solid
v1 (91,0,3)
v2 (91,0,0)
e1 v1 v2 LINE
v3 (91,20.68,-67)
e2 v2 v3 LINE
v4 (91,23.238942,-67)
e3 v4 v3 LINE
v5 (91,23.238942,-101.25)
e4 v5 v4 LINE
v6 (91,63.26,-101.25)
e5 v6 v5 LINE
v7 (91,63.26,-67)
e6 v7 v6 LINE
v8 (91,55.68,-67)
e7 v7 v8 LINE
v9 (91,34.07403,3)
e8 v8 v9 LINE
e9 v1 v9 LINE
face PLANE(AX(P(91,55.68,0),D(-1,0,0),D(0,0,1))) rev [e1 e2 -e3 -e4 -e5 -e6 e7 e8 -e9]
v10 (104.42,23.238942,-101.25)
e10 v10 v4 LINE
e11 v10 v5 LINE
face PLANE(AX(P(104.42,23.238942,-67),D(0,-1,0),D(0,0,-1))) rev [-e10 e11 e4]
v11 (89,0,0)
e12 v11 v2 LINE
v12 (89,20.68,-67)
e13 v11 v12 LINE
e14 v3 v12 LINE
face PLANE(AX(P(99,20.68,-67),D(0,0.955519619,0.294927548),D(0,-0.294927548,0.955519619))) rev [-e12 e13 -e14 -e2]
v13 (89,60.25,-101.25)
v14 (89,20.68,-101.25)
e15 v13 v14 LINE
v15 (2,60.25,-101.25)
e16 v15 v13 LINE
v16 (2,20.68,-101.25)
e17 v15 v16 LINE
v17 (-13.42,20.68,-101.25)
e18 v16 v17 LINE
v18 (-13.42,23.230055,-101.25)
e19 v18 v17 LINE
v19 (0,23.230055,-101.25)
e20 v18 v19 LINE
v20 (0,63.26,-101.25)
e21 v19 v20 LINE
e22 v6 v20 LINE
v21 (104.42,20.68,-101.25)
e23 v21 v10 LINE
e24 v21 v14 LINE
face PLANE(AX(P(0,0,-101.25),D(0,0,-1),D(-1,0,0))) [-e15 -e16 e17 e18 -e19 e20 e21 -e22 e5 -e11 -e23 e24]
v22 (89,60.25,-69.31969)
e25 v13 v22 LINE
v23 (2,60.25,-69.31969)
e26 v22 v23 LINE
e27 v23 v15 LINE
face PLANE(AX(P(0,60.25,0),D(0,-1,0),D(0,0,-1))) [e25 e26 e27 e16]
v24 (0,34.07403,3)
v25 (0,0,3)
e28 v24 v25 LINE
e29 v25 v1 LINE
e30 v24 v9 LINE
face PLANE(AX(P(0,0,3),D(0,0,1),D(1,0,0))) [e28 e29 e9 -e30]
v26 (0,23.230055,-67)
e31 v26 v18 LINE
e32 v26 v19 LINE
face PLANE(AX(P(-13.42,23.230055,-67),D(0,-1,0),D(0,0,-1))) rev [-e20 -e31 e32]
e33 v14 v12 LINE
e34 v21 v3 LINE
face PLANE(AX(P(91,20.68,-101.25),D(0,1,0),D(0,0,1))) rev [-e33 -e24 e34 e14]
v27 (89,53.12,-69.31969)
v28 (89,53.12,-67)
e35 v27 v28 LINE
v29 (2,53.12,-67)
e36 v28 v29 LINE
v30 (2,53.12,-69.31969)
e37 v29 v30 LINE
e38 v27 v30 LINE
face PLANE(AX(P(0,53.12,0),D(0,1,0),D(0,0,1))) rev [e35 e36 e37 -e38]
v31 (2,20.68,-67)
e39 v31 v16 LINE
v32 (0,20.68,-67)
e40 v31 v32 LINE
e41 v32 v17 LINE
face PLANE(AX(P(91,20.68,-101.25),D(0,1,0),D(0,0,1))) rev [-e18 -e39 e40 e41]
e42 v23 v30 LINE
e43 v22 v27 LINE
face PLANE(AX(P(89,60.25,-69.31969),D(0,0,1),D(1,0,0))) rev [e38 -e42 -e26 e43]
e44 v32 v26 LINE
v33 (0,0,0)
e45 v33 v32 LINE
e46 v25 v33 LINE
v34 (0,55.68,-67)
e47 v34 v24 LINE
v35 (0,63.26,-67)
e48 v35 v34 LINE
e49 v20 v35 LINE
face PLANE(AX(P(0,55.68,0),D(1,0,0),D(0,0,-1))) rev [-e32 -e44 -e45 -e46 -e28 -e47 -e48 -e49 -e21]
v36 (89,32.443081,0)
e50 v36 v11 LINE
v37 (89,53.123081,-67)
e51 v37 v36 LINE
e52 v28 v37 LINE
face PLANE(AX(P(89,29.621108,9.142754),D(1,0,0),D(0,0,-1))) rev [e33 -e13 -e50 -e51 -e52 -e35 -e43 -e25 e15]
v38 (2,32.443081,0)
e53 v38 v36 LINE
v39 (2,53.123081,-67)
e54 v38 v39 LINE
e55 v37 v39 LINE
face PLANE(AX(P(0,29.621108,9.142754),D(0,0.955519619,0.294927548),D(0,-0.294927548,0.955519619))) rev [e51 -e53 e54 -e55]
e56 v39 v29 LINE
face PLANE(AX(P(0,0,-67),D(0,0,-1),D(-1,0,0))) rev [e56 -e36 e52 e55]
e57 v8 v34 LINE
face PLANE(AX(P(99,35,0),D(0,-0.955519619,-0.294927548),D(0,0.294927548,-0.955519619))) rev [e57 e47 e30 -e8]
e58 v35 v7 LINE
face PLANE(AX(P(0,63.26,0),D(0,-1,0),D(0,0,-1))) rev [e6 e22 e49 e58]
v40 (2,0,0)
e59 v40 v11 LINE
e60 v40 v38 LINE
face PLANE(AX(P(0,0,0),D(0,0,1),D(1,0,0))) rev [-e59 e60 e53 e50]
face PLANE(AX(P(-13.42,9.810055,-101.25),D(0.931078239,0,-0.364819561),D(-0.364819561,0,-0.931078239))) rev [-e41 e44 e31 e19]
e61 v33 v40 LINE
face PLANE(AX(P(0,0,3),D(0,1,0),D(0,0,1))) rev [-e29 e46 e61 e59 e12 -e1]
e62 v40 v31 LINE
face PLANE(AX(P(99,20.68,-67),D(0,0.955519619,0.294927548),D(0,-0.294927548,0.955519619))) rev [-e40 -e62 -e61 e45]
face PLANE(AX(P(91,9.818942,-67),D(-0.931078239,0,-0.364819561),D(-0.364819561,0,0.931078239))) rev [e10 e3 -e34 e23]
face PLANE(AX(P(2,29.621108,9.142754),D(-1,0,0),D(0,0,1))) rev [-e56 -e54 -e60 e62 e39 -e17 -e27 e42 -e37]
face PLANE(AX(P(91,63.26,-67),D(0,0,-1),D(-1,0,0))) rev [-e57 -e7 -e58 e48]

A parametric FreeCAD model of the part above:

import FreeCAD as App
import Part
import Sketcher

V = App.Vector
Q = App.Units.Quantity

doc = App.newDocument("Part")
body = doc.addObject("PartDesign::Body", "Body")

sketch1 = doc.addObject("Sketcher::SketchObject", "Sketch")
body.addObject(sketch1)
sketch1.AttachmentSupport = (doc.XZ_Plane, [""])
sketch1.MapMode = "FlatFace"
sketch1.addGeometry([
    Part.LineSegment(V(0, -67, 0), V(0, 0, 0)),
    Part.LineSegment(V(0, 0, 0), V(91, 0, 0)),
    Part.LineSegment(V(91, 0, 0), V(91, -67, 0)),
    Part.LineSegment(V(91, -67, 0), V(0, -67, 0)),
], False)
sketch1.addConstraint([
    Sketcher.Constraint("Coincident", 0, 2, 1, 1),
    Sketcher.Constraint("Coincident", 1, 2, 2, 1),
    Sketcher.Constraint("Coincident", 2, 2, 3, 1),
    Sketcher.Constraint("Coincident", 3, 2, 0, 1),
    Sketcher.Constraint("Vertical", 0),
    Sketcher.Constraint("Horizontal", 1),
    Sketcher.Constraint("Vertical", 2),
    Sketcher.Constraint("Horizontal", 3),
    Sketcher.Constraint("Coincident", 0, 2, -1, 1),
    Sketcher.Constraint("DistanceX", 1, 1, 1, 2, Q("91 mm")),
    Sketcher.Constraint("DistanceY", 0, 1, 0, 2, Q("67 mm")),
])
pad1 = doc.addObject("PartDesign::Pad", "Pad")
body.addObject(pad1)
pad1.Profile = sketch1
pad1.Length = 55.68
pad1.Reversed = True

sketch2 = doc.addObject("Sketcher::SketchObject", "Sketch001")
body.addObject(sketch2)
sketch2.AttachmentSupport = (doc.YZ_Plane, [""])
sketch2.MapMode = "FlatFace"
sketch2.addGeometry([
    Part.LineSegment(V(21, -67, 0), V(0, -67, 0)),
    Part.LineSegment(V(0, -67, 0), V(0, 0, 0)),
    Part.LineSegment(V(0, 0, 0), V(21, -67, 0)),
], False)
sketch2.addConstraint([
    Sketcher.Constraint("Coincident", 0, 2, 1, 1),
    Sketcher.Constraint("Coincident", 1, 2, 2, 1),
    Sketcher.Constraint("Coincident", 2, 2, 0, 1),
    Sketcher.Constraint("Horizontal", 0),
    Sketcher.Constraint("Vertical", 1),
    Sketcher.Constraint("Coincident", 1, 2, -1, 1),
    Sketcher.Constraint("DistanceY", 1, 1, 1, 2, Q("67 mm")),
    Sketcher.Constraint("DistanceX", 0, 2, 0, 1, Q("20.68 mm")),
])
pocket1 = doc.addObject("PartDesign::Pocket", "Pocket")
body.addObject(pocket1)
pocket1.Profile = sketch2
pocket1.Length = 99
pocket1.Reversed = True

sketch3 = doc.addObject("Sketcher::SketchObject", "Sketch002")
body.addObject(sketch3)
sketch3.AttachmentSupport = (doc.YZ_Plane, [""])
sketch3.MapMode = "FlatFace"
sketch3.addGeometry([
    Part.LineSegment(V(35, 0, 0), V(56, 0, 0)),
    Part.LineSegment(V(56, 0, 0), V(56, -67, 0)),
    Part.LineSegment(V(56, -67, 0), V(35, 0, 0)),
], False)
sketch3.addConstraint([
    Sketcher.Constraint("Coincident", 0, 2, 1, 1),
    Sketcher.Constraint("Coincident", 1, 2, 2, 1),
    Sketcher.Constraint("Coincident", 2, 2, 0, 1),
    Sketcher.Constraint("Horizontal", 0),
    Sketcher.Constraint("Vertical", 1),
    Sketcher.Constraint("PointOnObject", 0, 2, -1),
    Sketcher.Constraint("DistanceY", 1, 2, 1, 1, Q("67 mm")),
    Sketcher.Constraint("DistanceX", -1, 1, 2, 2, Q("35 mm")),
    Sketcher.Constraint("DistanceX", 0, 1, 0, 2, Q("20.68 mm")),
])
pocket2 = doc.addObject("PartDesign::Pocket", "Pocket001")
body.addObject(pocket2)
pocket2.Profile = sketch3
pocket2.Length = 99
pocket2.Reversed = True

sketch4 = doc.addObject("Sketcher::SketchObject", "Sketch003")
body.addObject(sketch4)
sketch4.Placement = App.Placement(V(0, 0, 0), App.Rotation(V(-1, 0, 0), V(0, 0.294927548, -0.955519619), V(0, -0.955519619, -0.294927548), "ZXY"))
sketch4.addGeometry([
    Part.LineSegment(V(-89, 98, 0), V(-89, 0, 0)),
    Part.LineSegment(V(-89, 0, 0), V(-2, 0, 0)),
    Part.LineSegment(V(-2, 0, 0), V(-2, 98, 0)),
    Part.LineSegment(V(-2, 98, 0), V(-89, 98, 0)),
], False)
sketch4.addConstraint([
    Sketcher.Constraint("Coincident", 0, 2, 1, 1),
    Sketcher.Constraint("Coincident", 1, 2, 2, 1),
    Sketcher.Constraint("Coincident", 2, 2, 3, 1),
    Sketcher.Constraint("Coincident", 3, 2, 0, 1),
    Sketcher.Constraint("Vertical", 0),
    Sketcher.Constraint("Horizontal", 1),
    Sketcher.Constraint("Vertical", 2),
    Sketcher.Constraint("Horizontal", 3),
    Sketcher.Constraint("PointOnObject", 0, 2, -1),
    Sketcher.Constraint("DistanceX", 1, 1, 1, 2, Q("87 mm")),
    Sketcher.Constraint("DistanceX", 0, 2, -1, 1, Q("89 mm")),
    Sketcher.Constraint("DistanceY", 0, 2, 0, 1, Q("97.652851 mm")),
])
pocket3 = doc.addObject("PartDesign::Pocket", "Pocket002")
body.addObject(pocket3)
pocket3.Profile = sketch4
pocket3.Length = 31

sketch5 = doc.addObject("Sketcher::SketchObject", "Sketch004")
body.addObject(sketch5)
sketch5.AttachmentSupport = (doc.XY_Plane, [""])
sketch5.MapMode = "FlatFace"
sketch5.AttachmentOffset = App.Placement(V(0, 0, -67), App.Rotation())
sketch5.addGeometry([
    Part.LineSegment(V(91, 56, 0), V(91, 21, 0)),
    Part.LineSegment(V(91, 21, 0), V(0, 21, 0)),
    Part.LineSegment(V(0, 21, 0), V(0, 56, 0)),
    Part.LineSegment(V(0, 56, 0), V(91, 56, 0)),
], False)
sketch5.addConstraint([
    Sketcher.Constraint("Coincident", 0, 2, 1, 1),
    Sketcher.Constraint("Coincident", 1, 2, 2, 1),
    Sketcher.Constraint("Coincident", 2, 2, 3, 1),
    Sketcher.Constraint("Coincident", 3, 2, 0, 1),
    Sketcher.Constraint("Vertical", 0),
    Sketcher.Constraint("Horizontal", 1),
    Sketcher.Constraint("Vertical", 2),
    Sketcher.Constraint("Horizontal", 3),
    Sketcher.Constraint("PointOnObject", 1, 2, -2),
    Sketcher.Constraint("DistanceX", 1, 2, 1, 1, Q("91 mm")),
    Sketcher.Constraint("DistanceY", 0, 2, 0, 1, Q("35 mm")),
    Sketcher.Constraint("DistanceY", -1, 1, 0, 2, Q("20.68 mm")),
])
pad2 = doc.addObject("PartDesign::Pad", "Pad001")
body.addObject(pad2)
pad2.Profile = sketch5
pad2.Length = 34.25
pad2.Reversed = True

sketch6 = doc.addObject("Sketcher::SketchObject", "Sketch005")
body.addObject(sketch6)
sketch6.AttachmentSupport = (doc.XZ_Plane, [""])
sketch6.MapMode = "FlatFace"
sketch6.AttachmentOffset = App.Placement(V(0, 0, -20.68), App.Rotation())
sketch6.addGeometry([
    Part.LineSegment(V(2, -67, 0), V(2, -101, 0)),
    Part.LineSegment(V(2, -101, 0), V(89, -101, 0)),
    Part.LineSegment(V(89, -101, 0), V(89, -67, 0)),
    Part.LineSegment(V(89, -67, 0), V(2, -67, 0)),
], False)
sketch6.addConstraint([
    Sketcher.Constraint("Coincident", 0, 2, 1, 1),
    Sketcher.Constraint("Coincident", 1, 2, 2, 1),
    Sketcher.Constraint("Coincident", 2, 2, 3, 1),
    Sketcher.Constraint("Coincident", 3, 2, 0, 1),
    Sketcher.Constraint("Vertical", 0),
    Sketcher.Constraint("Horizontal", 1),
    Sketcher.Constraint("Vertical", 2),
    Sketcher.Constraint("Horizontal", 3),
    Sketcher.Constraint("DistanceX", 1, 1, 1, 2, Q("87 mm")),
    Sketcher.Constraint("DistanceX", -1, 1, 0, 2, Q("2 mm")),
    Sketcher.Constraint("DistanceY", 2, 2, -1, 1, Q("67 mm")),
    Sketcher.Constraint("DistanceY", 0, 2, 0, 1, Q("34.25 mm")),
])
pocket4 = doc.addObject("PartDesign::Pocket", "Pocket003")
body.addObject(pocket4)
pocket4.Profile = sketch6
pocket4.Length = 32.44

sketch7 = doc.addObject("Sketcher::SketchObject", "Sketch006")
body.addObject(sketch7)
sketch7.AttachmentSupport = (doc.YZ_Plane, [""])
sketch7.MapMode = "FlatFace"
sketch7.addGeometry([
    Part.LineSegment(V(23.2, -101.2, 0), V(20.7, -101.2, 0)),
    Part.LineSegment(V(20.7, -101.2, 0), V(20.7, -67, 0)),
    Part.LineSegment(V(20.7, -67, 0), V(23.2, -67, 0)),
    Part.LineSegment(V(23.2, -67, 0), V(23.2, -101.2, 0)),
], False)
sketch7.addConstraint([
    Sketcher.Constraint("Coincident", 0, 2, 1, 1),
    Sketcher.Constraint("Coincident", 1, 2, 2, 1),
    Sketcher.Constraint("Coincident", 2, 2, 3, 1),
    Sketcher.Constraint("Coincident", 3, 2, 0, 1),
    Sketcher.Constraint("Horizontal", 0),
    Sketcher.Constraint("Vertical", 1),
    Sketcher.Constraint("Horizontal", 2),
    Sketcher.Constraint("Vertical", 3),
    Sketcher.Constraint("DistanceY", 1, 2, -1, 1, Q("67 mm")),
    Sketcher.Constraint("DistanceY", 1, 1, 1, 2, Q("34.25 mm")),
    Sketcher.Constraint("DistanceX", -1, 1, 0, 2, Q("20.68 mm")),
    Sketcher.Constraint("DistanceX", 0, 2, 0, 1, Q("2.550055 mm")),
])
pad3 = doc.addObject("PartDesign::Pad", "Pad002")
body.addObject(pad3)
pad3.Profile = sketch7
pad3.Length = 13.42
pad3.Reversed = True

sketch8 = doc.addObject("Sketcher::SketchObject", "Sketch007")
body.addObject(sketch8)
sketch8.AttachmentSupport = (doc.YZ_Plane, [""])
sketch8.MapMode = "FlatFace"
sketch8.AttachmentOffset = App.Placement(V(0, 0, 91), App.Rotation())
sketch8.addGeometry([
    Part.LineSegment(V(23.2, -67, 0), V(20.7, -67, 0)),
    Part.LineSegment(V(20.7, -67, 0), V(20.7, -101.2, 0)),
    Part.LineSegment(V(20.7, -101.2, 0), V(23.2, -101.2, 0)),
    Part.LineSegment(V(23.2, -101.2, 0), V(23.2, -67, 0)),
], False)
sketch8.addConstraint([
    Sketcher.Constraint("Coincident", 0, 2, 1, 1),
    Sketcher.Constraint("Coincident", 1, 2, 2, 1),
    Sketcher.Constraint("Coincident", 2, 2, 3, 1),
    Sketcher.Constraint("Coincident", 3, 2, 0, 1),
    Sketcher.Constraint("Horizontal", 0),
    Sketcher.Constraint("Vertical", 1),
    Sketcher.Constraint("Horizontal", 2),
    Sketcher.Constraint("Vertical", 3),
    Sketcher.Constraint("DistanceY", 0, 2, -1, 1, Q("67 mm")),
    Sketcher.Constraint("DistanceY", 1, 2, 1, 1, Q("34.25 mm")),
    Sketcher.Constraint("DistanceX", -1, 1, 0, 2, Q("20.68 mm")),
    Sketcher.Constraint("DistanceX", 0, 2, 0, 1, Q("2.558942 mm")),
])
pad4 = doc.addObject("PartDesign::Pad", "Pad003")
body.addObject(pad4)
pad4.Profile = sketch8
pad4.Length = 13.42

sketch9 = doc.addObject("Sketcher::SketchObject", "Sketch008")
body.addObject(sketch9)
sketch9.AttachmentSupport = (doc.XZ_Plane, [""])
sketch9.MapMode = "FlatFace"
sketch9.AttachmentOffset = App.Placement(V(0, 0, -23.230055), App.Rotation())
sketch9.addGeometry([
    Part.LineSegment(V(0, -67, 0), V(-13, -101, 0)),
    Part.LineSegment(V(-13, -101, 0), V(-13, -67, 0)),
    Part.LineSegment(V(-13, -67, 0), V(0, -67, 0)),
], False)
sketch9.addConstraint([
    Sketcher.Constraint("Coincident", 0, 2, 1, 1),
    Sketcher.Constraint("Coincident", 1, 2, 2, 1),
    Sketcher.Constraint("Coincident", 2, 2, 0, 1),
    Sketcher.Constraint("Vertical", 1),
    Sketcher.Constraint("Horizontal", 2),
    Sketcher.Constraint("PointOnObject", 2, 2, -2),
    Sketcher.Constraint("DistanceY", 1, 2, -1, 1, Q("67 mm")),
    Sketcher.Constraint("DistanceX", 2, 1, 2, 2, Q("13.42 mm")),
    Sketcher.Constraint("DistanceY", 1, 1, 1, 2, Q("34.25 mm")),
])
pocket5 = doc.addObject("PartDesign::Pocket", "Pocket004")
body.addObject(pocket5)
pocket5.Profile = sketch9
pocket5.Length = 13.42
pocket5.Reversed = True

sketch10 = doc.addObject("Sketcher::SketchObject", "Sketch009")
body.addObject(sketch10)
sketch10.AttachmentSupport = (doc.XZ_Plane, [""])
sketch10.MapMode = "FlatFace"
sketch10.AttachmentOffset = App.Placement(V(0, 0, -23.238942), App.Rotation())
sketch10.addGeometry([
    Part.LineSegment(V(104, -101, 0), V(91, -67, 0)),
    Part.LineSegment(V(91, -67, 0), V(104, -67, 0)),
    Part.LineSegment(V(104, -67, 0), V(104, -101, 0)),
], False)
sketch10.addConstraint([
    Sketcher.Constraint("Coincident", 0, 2, 1, 1),
    Sketcher.Constraint("Coincident", 1, 2, 2, 1),
    Sketcher.Constraint("Coincident", 2, 2, 0, 1),
    Sketcher.Constraint("Horizontal", 1),
    Sketcher.Constraint("Vertical", 2),
    Sketcher.Constraint("DistanceX", -1, 1, 0, 2, Q("91 mm")),
    Sketcher.Constraint("DistanceY", 0, 2, -1, 1, Q("67 mm")),
    Sketcher.Constraint("DistanceX", 1, 1, 1, 2, Q("13.42 mm")),
    Sketcher.Constraint("DistanceY", 2, 2, 2, 1, Q("34.25 mm")),
])
pocket6 = doc.addObject("PartDesign::Pocket", "Pocket005")
body.addObject(pocket6)
pocket6.Profile = sketch10
pocket6.Length = 13.42
pocket6.Reversed = True

sketch11 = doc.addObject("Sketcher::SketchObject", "Sketch010")
body.addObject(sketch11)
sketch11.AttachmentSupport = (doc.XY_Plane, [""])
sketch11.MapMode = "FlatFace"
sketch11.addGeometry([
    Part.LineSegment(V(0, 35, 0), V(0, 0, 0)),
    Part.LineSegment(V(0, 0, 0), V(91, 0, 0)),
    Part.LineSegment(V(91, 0, 0), V(91, 35, 0)),
    Part.LineSegment(V(91, 35, 0), V(0, 35, 0)),
], False)
sketch11.addConstraint([
    Sketcher.Constraint("Coincident", 0, 2, 1, 1),
    Sketcher.Constraint("Coincident", 1, 2, 2, 1),
    Sketcher.Constraint("Coincident", 2, 2, 3, 1),
    Sketcher.Constraint("Coincident", 3, 2, 0, 1),
    Sketcher.Constraint("Vertical", 0),
    Sketcher.Constraint("Horizontal", 1),
    Sketcher.Constraint("Vertical", 2),
    Sketcher.Constraint("Horizontal", 3),
    Sketcher.Constraint("Coincident", 0, 2, -1, 1),
    Sketcher.Constraint("DistanceX", 1, 1, 1, 2, Q("91 mm")),
    Sketcher.Constraint("DistanceY", 0, 2, 0, 1, Q("35 mm")),
])
pad5 = doc.addObject("PartDesign::Pad", "Pad004")
body.addObject(pad5)
pad5.Profile = sketch11
pad5.Length = 3

sketch12 = doc.addObject("Sketcher::SketchObject", "Sketch011")
body.addObject(sketch12)
sketch12.AttachmentSupport = (doc.YZ_Plane, [""])
sketch12.MapMode = "FlatFace"
sketch12.addGeometry([
    Part.LineSegment(V(35, 0, 0), V(34.1, 3, 0)),
    Part.LineSegment(V(34.1, 3, 0), V(35, 3, 0)),
    Part.LineSegment(V(35, 3, 0), V(35, 0, 0)),
], False)
sketch12.addConstraint([
    Sketcher.Constraint("Coincident", 0, 2, 1, 1),
    Sketcher.Constraint("Coincident", 1, 2, 2, 1),
    Sketcher.Constraint("Coincident", 2, 2, 0, 1),
    Sketcher.Constraint("Horizontal", 1),
    Sketcher.Constraint("Vertical", 2),
    Sketcher.Constraint("PointOnObject", 2, 2, -1),
    Sketcher.Constraint("DistanceY", 2, 2, 2, 1, Q("3 mm")),
    Sketcher.Constraint("DistanceX", -1, 1, 1, 2, Q("35 mm")),
    Sketcher.Constraint("DistanceX", 1, 1, 1, 2, Q("0.92597 mm")),
])
pocket7 = doc.addObject("PartDesign::Pocket", "Pocket006")
body.addObject(pocket7)
pocket7.Profile = sketch12
pocket7.Length = 99
pocket7.Reversed = True

sketch13 = doc.addObject("Sketcher::SketchObject", "Sketch012")
body.addObject(sketch13)
sketch13.AttachmentSupport = (doc.XZ_Plane, [""])
sketch13.MapMode = "FlatFace"
sketch13.AttachmentOffset = App.Placement(V(0, 0, -55.68), App.Rotation())
sketch13.addGeometry([
    Part.LineSegment(V(0, -101, 0), V(0, -67, 0)),
    Part.LineSegment(V(0, -67, 0), V(91, -67, 0)),
    Part.LineSegment(V(91, -67, 0), V(91, -101, 0)),
    Part.LineSegment(V(91, -101, 0), V(0, -101, 0)),
], False)
sketch13.addConstraint([
    Sketcher.Constraint("Coincident", 0, 2, 1, 1),
    Sketcher.Constraint("Coincident", 1, 2, 2, 1),
    Sketcher.Constraint("Coincident", 2, 2, 3, 1),
    Sketcher.Constraint("Coincident", 3, 2, 0, 1),
    Sketcher.Constraint("Vertical", 0),
    Sketcher.Constraint("Horizontal", 1),
    Sketcher.Constraint("Vertical", 2),
    Sketcher.Constraint("Horizontal", 3),
    Sketcher.Constraint("PointOnObject", 0, 2, -2),
    Sketcher.Constraint("DistanceX", 1, 1, 1, 2, Q("91 mm")),
    Sketcher.Constraint("DistanceY", 0, 2, -1, 1, Q("67 mm")),
    Sketcher.Constraint("DistanceY", 0, 1, 0, 2, Q("34.25 mm")),
])
pad6 = doc.addObject("PartDesign::Pad", "Pad005")
body.addObject(pad6)
pad6.Profile = sketch13
pad6.Length = 7.58
pad6.Reversed = True

sketch14 = doc.addObject("Sketcher::SketchObject", "Sketch013")
body.addObject(sketch14)
sketch14.AttachmentSupport = (doc.XZ_Plane, [""])
sketch14.MapMode = "FlatFace"
sketch14.AttachmentOffset = App.Placement(V(0, 0, -53.12), App.Rotation())
sketch14.addGeometry([
    Part.LineSegment(V(2, -69, 0), V(2, -101, 0)),
    Part.LineSegment(V(2, -101, 0), V(89, -101, 0)),
    Part.LineSegment(V(89, -101, 0), V(89, -69, 0)),
    Part.LineSegment(V(89, -69, 0), V(2, -69, 0)),
], False)
sketch14.addConstraint([
    Sketcher.Constraint("Coincident", 0, 2, 1, 1),
    Sketcher.Constraint("Coincident", 1, 2, 2, 1),
    Sketcher.Constraint("Coincident", 2, 2, 3, 1),
    Sketcher.Constraint("Coincident", 3, 2, 0, 1),
    Sketcher.Constraint("Vertical", 0),
    Sketcher.Constraint("Horizontal", 1),
    Sketcher.Constraint("Vertical", 2),
    Sketcher.Constraint("Horizontal", 3),
    Sketcher.Constraint("DistanceX", 1, 1, 1, 2, Q("87 mm")),
    Sketcher.Constraint("DistanceX", -1, 1, 0, 2, Q("2 mm")),
    Sketcher.Constraint("DistanceY", 0, 2, -1, 1, Q("101.25 mm")),
    Sketcher.Constraint("DistanceY", 0, 2, 0, 1, Q("31.93031 mm")),
])
pocket8 = doc.addObject("PartDesign::Pocket", "Pocket007")
body.addObject(pocket8)
pocket8.Profile = sketch14
pocket8.Length = 7.13

doc.recompute()
